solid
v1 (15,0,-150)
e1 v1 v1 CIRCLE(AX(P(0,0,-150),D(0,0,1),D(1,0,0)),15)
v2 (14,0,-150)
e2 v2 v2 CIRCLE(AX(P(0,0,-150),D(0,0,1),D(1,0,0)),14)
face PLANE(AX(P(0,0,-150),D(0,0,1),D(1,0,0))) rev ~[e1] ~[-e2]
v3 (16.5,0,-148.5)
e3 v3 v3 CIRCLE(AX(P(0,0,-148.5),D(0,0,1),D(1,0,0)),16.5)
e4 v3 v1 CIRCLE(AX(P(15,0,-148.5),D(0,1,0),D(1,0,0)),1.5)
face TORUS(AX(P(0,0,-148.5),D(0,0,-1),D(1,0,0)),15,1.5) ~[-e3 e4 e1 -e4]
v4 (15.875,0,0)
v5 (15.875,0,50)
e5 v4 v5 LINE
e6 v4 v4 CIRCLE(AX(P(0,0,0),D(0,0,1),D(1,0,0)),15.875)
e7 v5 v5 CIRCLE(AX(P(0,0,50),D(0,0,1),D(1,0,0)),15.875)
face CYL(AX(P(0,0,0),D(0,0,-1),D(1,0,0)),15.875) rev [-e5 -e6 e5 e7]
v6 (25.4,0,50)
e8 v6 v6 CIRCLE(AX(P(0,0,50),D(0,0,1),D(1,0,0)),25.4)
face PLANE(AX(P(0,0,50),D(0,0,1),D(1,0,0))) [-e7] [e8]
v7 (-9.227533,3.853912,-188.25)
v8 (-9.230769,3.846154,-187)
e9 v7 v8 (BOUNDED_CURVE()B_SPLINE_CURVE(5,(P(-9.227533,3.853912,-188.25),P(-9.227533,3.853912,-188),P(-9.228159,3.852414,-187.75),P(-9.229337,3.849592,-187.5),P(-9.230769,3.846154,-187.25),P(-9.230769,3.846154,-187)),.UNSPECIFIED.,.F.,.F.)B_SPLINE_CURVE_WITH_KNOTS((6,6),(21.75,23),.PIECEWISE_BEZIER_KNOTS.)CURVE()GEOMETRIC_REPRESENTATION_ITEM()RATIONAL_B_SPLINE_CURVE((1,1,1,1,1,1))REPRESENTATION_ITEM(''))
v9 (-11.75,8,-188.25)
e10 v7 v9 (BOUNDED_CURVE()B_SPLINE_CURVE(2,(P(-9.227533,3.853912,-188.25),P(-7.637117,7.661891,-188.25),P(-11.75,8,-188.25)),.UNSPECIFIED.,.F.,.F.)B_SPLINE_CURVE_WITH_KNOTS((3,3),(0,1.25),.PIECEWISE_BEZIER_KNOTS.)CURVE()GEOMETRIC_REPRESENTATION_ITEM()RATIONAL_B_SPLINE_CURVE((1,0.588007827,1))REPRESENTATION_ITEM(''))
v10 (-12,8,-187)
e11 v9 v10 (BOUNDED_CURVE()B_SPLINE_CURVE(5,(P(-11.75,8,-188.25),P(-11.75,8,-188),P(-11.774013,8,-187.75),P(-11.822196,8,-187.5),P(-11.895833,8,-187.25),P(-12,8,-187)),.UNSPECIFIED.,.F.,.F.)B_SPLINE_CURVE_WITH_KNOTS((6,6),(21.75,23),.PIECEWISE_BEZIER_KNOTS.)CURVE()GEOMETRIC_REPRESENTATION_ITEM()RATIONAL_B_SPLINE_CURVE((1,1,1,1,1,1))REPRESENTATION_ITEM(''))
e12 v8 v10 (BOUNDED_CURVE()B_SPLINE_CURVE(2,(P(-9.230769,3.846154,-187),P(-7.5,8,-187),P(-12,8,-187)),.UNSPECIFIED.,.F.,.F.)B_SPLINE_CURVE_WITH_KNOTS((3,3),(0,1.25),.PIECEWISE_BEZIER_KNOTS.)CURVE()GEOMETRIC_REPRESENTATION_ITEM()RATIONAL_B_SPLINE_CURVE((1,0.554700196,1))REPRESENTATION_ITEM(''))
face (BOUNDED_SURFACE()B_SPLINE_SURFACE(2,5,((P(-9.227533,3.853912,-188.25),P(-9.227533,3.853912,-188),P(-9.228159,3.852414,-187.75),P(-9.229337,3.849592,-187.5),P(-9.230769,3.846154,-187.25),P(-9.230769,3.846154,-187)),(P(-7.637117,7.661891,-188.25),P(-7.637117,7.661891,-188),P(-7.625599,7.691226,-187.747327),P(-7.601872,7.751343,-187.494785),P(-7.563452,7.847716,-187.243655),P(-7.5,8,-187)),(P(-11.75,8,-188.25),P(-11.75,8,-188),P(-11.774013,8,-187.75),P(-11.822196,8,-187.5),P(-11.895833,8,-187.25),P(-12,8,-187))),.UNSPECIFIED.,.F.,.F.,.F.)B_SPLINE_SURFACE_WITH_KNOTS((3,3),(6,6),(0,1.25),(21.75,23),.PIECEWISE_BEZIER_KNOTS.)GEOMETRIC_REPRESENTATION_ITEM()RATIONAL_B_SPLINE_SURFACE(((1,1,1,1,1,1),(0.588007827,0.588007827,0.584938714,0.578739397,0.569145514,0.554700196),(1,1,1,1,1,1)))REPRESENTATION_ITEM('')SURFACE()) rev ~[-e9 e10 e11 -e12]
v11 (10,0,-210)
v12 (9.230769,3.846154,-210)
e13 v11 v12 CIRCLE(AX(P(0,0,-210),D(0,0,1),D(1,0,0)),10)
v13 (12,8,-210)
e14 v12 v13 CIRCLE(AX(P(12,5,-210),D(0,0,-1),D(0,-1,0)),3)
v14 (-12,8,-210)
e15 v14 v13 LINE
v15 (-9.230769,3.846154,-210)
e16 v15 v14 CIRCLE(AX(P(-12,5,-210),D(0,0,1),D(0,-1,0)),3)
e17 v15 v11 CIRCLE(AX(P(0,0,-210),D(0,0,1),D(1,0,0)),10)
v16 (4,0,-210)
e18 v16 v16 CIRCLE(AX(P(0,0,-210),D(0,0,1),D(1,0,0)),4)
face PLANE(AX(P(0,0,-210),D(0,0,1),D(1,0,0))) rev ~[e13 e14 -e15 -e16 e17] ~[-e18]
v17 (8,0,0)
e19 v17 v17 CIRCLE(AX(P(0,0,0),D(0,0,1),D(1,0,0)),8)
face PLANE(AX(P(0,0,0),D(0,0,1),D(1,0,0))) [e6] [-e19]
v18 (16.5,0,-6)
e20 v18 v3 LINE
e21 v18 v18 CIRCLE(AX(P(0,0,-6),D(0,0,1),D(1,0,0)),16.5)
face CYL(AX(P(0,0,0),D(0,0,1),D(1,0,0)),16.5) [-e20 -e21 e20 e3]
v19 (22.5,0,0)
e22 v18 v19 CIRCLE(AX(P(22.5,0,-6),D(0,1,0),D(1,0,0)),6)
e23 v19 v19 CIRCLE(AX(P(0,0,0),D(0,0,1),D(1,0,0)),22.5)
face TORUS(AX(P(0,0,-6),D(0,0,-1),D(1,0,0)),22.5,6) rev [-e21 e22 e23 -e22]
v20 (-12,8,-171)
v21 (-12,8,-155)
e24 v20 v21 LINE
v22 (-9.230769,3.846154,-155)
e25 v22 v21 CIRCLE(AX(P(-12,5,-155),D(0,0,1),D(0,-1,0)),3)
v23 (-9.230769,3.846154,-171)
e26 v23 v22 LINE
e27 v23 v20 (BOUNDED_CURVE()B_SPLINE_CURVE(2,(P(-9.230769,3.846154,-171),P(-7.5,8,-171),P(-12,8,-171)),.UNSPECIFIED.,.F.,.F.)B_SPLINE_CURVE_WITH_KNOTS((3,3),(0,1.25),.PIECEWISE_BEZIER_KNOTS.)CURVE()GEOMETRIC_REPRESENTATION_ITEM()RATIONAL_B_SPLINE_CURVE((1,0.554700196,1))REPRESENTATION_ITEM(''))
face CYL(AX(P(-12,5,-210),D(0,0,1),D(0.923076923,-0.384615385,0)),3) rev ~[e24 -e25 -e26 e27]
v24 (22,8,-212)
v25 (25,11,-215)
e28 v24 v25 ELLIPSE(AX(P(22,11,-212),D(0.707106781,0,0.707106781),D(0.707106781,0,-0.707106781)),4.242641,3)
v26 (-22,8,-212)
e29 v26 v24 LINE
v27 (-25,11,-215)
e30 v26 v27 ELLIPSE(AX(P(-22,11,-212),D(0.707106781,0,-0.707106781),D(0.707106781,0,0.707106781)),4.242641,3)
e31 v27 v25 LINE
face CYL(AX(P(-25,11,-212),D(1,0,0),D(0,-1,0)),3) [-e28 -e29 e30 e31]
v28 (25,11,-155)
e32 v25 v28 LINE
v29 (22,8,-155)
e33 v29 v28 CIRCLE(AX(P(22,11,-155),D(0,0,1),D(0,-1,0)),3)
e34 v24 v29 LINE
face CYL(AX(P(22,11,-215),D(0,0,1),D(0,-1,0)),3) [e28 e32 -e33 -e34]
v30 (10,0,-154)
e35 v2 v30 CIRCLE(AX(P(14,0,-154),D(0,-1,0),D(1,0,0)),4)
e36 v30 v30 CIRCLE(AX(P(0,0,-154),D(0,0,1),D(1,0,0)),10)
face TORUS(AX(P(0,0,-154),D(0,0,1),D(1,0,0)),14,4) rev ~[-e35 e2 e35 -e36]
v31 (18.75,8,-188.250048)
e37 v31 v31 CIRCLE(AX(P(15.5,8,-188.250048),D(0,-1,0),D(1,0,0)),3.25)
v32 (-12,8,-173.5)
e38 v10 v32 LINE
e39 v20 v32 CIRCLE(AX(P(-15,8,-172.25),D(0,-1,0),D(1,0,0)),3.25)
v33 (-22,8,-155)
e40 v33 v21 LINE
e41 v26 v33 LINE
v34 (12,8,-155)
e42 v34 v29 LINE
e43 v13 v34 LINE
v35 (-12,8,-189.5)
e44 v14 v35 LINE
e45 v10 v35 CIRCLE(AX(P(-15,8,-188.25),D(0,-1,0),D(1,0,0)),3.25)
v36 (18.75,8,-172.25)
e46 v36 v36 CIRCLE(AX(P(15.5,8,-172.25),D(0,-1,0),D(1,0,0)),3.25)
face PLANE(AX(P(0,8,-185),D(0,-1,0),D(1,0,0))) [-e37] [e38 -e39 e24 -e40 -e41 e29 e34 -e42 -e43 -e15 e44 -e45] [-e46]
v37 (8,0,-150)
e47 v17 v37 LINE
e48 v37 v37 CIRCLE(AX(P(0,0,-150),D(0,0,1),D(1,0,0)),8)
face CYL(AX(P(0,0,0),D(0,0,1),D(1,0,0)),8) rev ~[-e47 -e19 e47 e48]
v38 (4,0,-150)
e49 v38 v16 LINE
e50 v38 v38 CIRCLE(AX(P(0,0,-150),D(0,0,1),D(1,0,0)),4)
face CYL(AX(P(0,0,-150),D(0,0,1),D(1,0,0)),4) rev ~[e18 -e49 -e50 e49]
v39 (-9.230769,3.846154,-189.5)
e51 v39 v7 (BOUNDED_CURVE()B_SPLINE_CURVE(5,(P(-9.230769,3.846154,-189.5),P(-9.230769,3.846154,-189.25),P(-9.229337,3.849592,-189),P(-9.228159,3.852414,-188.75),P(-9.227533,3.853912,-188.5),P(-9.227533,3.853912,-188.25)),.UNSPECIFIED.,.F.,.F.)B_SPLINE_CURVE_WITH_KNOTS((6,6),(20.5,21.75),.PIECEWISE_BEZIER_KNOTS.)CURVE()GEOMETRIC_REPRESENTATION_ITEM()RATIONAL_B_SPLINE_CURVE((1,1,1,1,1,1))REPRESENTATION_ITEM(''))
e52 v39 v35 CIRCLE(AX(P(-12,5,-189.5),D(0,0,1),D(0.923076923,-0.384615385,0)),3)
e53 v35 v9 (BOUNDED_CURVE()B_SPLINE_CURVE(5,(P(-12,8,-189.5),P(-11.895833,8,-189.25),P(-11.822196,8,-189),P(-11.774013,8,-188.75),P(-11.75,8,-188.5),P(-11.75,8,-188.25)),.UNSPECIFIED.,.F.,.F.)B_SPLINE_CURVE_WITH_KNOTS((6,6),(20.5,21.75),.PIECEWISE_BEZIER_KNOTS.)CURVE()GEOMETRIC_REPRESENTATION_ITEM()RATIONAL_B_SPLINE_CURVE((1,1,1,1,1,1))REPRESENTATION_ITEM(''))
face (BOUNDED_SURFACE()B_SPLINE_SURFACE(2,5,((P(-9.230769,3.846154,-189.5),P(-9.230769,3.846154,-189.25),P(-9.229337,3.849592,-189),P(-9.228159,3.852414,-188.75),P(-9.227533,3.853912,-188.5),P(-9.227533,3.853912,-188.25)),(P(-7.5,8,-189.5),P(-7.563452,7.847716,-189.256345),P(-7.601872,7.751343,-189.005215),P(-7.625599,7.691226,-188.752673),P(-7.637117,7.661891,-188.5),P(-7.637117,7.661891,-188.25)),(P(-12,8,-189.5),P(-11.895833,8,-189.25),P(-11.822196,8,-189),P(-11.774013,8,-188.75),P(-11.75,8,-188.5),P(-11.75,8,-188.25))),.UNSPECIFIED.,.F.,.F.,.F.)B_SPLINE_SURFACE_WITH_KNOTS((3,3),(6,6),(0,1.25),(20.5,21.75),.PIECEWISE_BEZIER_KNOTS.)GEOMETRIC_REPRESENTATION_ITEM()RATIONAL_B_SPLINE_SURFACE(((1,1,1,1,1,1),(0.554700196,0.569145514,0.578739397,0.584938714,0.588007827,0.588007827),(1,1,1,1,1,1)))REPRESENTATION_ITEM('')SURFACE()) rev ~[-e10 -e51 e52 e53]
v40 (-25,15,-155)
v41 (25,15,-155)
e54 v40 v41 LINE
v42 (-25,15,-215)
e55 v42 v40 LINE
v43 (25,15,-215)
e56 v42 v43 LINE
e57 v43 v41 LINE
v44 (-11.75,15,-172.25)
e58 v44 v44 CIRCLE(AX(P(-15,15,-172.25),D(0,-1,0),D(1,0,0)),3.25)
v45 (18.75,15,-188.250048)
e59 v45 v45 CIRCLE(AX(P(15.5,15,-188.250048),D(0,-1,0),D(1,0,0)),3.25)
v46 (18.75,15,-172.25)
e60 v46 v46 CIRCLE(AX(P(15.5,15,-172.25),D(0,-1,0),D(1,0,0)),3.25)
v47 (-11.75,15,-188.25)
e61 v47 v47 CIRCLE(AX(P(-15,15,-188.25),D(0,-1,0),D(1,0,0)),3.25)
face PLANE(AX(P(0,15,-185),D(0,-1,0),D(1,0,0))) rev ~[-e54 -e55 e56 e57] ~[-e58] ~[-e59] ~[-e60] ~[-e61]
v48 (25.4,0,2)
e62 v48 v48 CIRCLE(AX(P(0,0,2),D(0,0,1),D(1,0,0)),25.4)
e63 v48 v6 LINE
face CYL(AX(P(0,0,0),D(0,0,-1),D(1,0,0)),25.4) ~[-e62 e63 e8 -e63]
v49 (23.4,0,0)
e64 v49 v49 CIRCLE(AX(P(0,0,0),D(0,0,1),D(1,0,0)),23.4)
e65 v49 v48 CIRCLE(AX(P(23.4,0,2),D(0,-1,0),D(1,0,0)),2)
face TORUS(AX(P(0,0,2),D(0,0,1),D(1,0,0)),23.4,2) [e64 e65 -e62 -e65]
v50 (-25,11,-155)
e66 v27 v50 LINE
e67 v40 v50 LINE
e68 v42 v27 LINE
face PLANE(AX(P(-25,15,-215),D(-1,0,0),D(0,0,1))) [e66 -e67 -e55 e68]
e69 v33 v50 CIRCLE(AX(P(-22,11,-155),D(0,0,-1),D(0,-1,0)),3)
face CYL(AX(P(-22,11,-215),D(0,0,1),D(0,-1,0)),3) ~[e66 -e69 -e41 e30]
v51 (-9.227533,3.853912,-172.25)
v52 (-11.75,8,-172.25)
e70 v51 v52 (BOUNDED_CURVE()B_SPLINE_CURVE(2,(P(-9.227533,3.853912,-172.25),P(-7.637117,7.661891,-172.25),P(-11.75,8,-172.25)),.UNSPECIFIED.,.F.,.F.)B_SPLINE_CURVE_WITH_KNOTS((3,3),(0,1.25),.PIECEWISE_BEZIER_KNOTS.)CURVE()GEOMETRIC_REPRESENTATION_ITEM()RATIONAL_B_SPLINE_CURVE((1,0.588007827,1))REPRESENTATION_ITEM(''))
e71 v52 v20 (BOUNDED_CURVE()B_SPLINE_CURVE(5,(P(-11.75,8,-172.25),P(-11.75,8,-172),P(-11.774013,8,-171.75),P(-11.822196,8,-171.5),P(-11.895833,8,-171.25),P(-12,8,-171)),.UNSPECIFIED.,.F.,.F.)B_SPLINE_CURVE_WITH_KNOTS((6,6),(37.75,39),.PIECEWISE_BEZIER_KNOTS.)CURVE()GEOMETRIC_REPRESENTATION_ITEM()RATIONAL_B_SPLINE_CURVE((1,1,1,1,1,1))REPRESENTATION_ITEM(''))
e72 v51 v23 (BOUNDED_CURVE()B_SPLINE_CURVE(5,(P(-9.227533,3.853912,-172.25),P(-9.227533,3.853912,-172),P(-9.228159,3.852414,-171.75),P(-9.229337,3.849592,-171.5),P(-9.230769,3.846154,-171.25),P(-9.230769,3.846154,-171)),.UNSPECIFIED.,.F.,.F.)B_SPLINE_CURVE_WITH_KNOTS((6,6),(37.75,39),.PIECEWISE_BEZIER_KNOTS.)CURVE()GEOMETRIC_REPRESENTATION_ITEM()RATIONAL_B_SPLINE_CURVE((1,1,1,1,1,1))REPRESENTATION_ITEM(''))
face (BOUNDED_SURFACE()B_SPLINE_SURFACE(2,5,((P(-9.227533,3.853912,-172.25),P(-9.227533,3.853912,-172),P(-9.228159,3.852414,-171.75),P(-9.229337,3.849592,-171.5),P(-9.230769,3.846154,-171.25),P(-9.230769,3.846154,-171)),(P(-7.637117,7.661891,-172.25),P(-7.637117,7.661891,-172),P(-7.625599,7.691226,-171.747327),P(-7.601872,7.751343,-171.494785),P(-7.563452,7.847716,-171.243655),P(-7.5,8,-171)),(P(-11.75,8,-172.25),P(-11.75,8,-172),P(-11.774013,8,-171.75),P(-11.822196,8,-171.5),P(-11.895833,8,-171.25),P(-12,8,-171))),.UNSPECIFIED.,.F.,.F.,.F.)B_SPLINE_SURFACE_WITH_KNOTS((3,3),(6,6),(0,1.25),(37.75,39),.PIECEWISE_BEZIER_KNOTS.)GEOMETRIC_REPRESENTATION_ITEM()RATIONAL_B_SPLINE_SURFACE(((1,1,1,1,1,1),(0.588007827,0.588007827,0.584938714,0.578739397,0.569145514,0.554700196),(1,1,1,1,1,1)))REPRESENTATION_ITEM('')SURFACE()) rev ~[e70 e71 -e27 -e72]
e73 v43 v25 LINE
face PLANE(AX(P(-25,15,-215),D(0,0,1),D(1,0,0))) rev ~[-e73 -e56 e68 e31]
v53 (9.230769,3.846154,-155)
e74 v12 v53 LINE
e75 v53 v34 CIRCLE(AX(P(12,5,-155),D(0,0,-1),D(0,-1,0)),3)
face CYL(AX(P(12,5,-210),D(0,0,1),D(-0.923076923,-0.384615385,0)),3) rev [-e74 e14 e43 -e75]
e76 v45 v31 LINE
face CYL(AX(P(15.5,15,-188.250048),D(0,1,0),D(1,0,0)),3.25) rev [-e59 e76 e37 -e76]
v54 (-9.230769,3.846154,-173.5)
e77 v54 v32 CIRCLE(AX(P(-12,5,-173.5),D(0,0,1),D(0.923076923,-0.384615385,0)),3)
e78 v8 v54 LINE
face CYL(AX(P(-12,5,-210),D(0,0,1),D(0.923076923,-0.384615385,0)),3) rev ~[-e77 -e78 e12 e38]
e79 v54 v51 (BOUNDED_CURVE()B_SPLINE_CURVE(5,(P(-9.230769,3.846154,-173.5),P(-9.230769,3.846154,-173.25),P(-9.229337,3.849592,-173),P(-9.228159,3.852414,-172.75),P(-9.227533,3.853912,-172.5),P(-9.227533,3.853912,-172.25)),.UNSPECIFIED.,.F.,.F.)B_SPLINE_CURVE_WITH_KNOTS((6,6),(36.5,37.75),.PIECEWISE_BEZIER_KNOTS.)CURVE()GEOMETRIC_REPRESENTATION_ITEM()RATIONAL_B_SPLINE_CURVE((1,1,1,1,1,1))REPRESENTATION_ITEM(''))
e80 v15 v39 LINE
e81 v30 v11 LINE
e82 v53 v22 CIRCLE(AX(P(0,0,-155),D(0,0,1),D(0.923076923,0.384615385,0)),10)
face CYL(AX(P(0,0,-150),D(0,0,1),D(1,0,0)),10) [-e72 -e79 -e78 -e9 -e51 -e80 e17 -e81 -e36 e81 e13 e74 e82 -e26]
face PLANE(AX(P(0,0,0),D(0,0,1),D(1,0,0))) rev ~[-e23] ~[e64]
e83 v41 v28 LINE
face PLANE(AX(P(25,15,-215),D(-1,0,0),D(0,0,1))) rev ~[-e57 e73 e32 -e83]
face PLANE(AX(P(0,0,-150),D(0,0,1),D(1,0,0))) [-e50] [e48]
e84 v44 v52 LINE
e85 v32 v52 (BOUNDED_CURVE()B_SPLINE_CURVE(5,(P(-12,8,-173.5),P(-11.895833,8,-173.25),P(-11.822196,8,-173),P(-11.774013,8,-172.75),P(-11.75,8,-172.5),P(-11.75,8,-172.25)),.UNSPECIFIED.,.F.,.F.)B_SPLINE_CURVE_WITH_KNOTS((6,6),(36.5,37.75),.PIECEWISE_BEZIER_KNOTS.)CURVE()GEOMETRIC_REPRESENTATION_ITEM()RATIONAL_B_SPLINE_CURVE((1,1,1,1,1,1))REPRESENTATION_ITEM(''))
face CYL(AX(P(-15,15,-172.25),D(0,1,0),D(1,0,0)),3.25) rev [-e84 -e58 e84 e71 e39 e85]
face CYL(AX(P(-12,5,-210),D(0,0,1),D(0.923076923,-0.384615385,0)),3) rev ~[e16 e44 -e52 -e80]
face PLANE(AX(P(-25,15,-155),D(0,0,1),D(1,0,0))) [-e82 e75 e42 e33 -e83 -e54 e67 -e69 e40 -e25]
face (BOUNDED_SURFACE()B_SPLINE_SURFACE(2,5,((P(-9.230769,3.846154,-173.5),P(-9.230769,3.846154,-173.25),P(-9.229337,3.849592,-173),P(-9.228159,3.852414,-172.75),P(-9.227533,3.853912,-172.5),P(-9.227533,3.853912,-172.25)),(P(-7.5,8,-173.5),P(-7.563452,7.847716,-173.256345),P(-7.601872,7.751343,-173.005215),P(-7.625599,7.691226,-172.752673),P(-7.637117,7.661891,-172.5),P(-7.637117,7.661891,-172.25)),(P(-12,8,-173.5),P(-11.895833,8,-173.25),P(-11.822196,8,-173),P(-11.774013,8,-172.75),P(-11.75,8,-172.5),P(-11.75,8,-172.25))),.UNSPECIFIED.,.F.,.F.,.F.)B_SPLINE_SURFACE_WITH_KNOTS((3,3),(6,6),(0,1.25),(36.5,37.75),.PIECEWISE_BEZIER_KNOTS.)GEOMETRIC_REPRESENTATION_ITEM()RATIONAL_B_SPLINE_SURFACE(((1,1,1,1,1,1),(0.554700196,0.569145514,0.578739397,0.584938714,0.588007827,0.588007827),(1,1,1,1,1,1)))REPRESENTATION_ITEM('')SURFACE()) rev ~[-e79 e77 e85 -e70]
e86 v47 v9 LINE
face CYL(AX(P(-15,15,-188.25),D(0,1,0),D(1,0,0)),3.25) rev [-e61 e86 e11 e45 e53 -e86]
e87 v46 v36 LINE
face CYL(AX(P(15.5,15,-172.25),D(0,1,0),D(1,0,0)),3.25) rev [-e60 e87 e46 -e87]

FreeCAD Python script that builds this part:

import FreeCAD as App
import Part
import Sketcher
from FreeCAD import Vector
Q = App.Units.Quantity


def edges_at(feature, points):
    """Names of the edges that pass closest to the given points."""
    edges = feature.Shape.Edges
    near = lambda p: min(range(len(edges)), key=lambda i: edges[i].distToShape(Part.Vertex(*p))[0])
    return sorted({f"Edge{near(p) + 1}" for p in points})

doc = App.newDocument("Part")
body = doc.addObject("PartDesign::Body", "Body")

# Sketch on XY plane
sketch1 = body.newObject("Sketcher::SketchObject", "Sketch")
sketch1.AttachmentSupport = (doc.getObject("XY_Plane"), [""])
sketch1.MapMode = "FlatFace"
sketch1.addGeometry(Part.Circle(Vector(0, 0, 0), Vector(0, 0, 1), 16), False)
sketch1.addGeometry(Part.Circle(Vector(0, 0, 0), Vector(0, 0, 1), 8), False)
sketch1.addConstraint(Sketcher.Constraint("Coincident", 0, 3, -1, 1))
sketch1.addConstraint(Sketcher.Constraint("Coincident", 1, 3, -1, 1))
sketch1.addConstraint(Sketcher.Constraint("Diameter", 0, Q("33 mm")))
sketch1.addConstraint(Sketcher.Constraint("Diameter", 1, Q("16 mm")))
pad1 = body.newObject("PartDesign::Pad", "Pad")
pad1.Profile = sketch1
pad1.Length = 150
pad1.Reversed = True
body2 = doc.addObject("PartDesign::Body", "Body001")

# Sketch on XY plane
sketch2 = body2.newObject("Sketcher::SketchObject", "Sketch001")
sketch2.AttachmentSupport = (doc.getObject("XY_Plane001"), [""])
sketch2.MapMode = "FlatFace"
sketch2.AttachmentOffset = App.Placement(Vector(0, 0, -150), App.Rotation())
sketch2.addGeometry(Part.Circle(Vector(0, 0, 0), Vector(0, 0, 1), 10), False)
sketch2.addGeometry(Part.Circle(Vector(0, 0, 0), Vector(0, 0, 1), 4), False)
sketch2.addConstraint(Sketcher.Constraint("Coincident", 0, 3, -1, 1))
sketch2.addConstraint(Sketcher.Constraint("Coincident", 1, 3, -1, 1))
sketch2.addConstraint(Sketcher.Constraint("Diameter", 0, Q("20 mm")))
sketch2.addConstraint(Sketcher.Constraint("Diameter", 1, Q("8 mm")))
pad2 = body2.newObject("PartDesign::Pad", "Pad001")
pad2.Profile = sketch2
pad2.Length = 60
pad2.Reversed = True
body3 = doc.addObject("PartDesign::Body", "Body002")

# Sketch on XZ plane
sketch3 = body3.newObject("Sketcher::SketchObject", "Sketch002")
sketch3.AttachmentSupport = (doc.getObject("XZ_Plane002"), [""])
sketch3.MapMode = "FlatFace"
sketch3.AttachmentOffset = App.Placement(Vector(0, 0, -15), App.Rotation())
sketch3.addGeometry(Part.LineSegment(Vector(-25, -155, 0), Vector(-25, -215, 0)), False)
sketch3.addGeometry(Part.LineSegment(Vector(-25, -215, 0), Vector(25, -215, 0)), False)
sketch3.addGeometry(Part.LineSegment(Vector(25, -215, 0), Vector(25, -155, 0)), False)
sketch3.addGeometry(Part.LineSegment(Vector(25, -155, 0), Vector(-25, -155, 0)), False)
sketch3.addGeometry(Part.Circle(Vector(-15, -188.2, 0), Vector(0, 0, 1), 3.2), False)
sketch3.addGeometry(Part.Circle(Vector(15.5, -188.3, 0), Vector(0, 0, 1), 3.2), False)
sketch3.addGeometry(Part.Circle(Vector(-15, -172.2, 0), Vector(0, 0, 1), 3.2), False)
sketch3.addGeometry(Part.Circle(Vector(15.5, -172.2, 0), Vector(0, 0, 1), 3.2), False)
sketch3.addConstraint(Sketcher.Constraint("Coincident", 0, 2, 1, 1))
sketch3.addConstraint(Sketcher.Constraint("Coincident", 1, 2, 2, 1))
sketch3.addConstraint(Sketcher.Constraint("Coincident", 2, 2, 3, 1))
sketch3.addConstraint(Sketcher.Constraint("Coincident", 3, 2, 0, 1))
sketch3.addConstraint(Sketcher.Constraint("Vertical", 0))
sketch3.addConstraint(Sketcher.Constraint("Horizontal", 1))
sketch3.addConstraint(Sketcher.Constraint("Vertical", 2))
sketch3.addConstraint(Sketcher.Constraint("Horizontal", 3))
sketch3.addConstraint(Sketcher.Constraint("Equal", 4, 5))
sketch3.addConstraint(Sketcher.Constraint("Equal", 5, 6))
sketch3.addConstraint(Sketcher.Constraint("Equal", 6, 7))
sketch3.addConstraint(Sketcher.Constraint("Horizontal", 6, 3, 7, 3))
sketch3.addConstraint(Sketcher.Constraint("Vertical", 4, 3, 6, 3))
sketch3.addConstraint(Sketcher.Constraint("Vertical", 5, 3, 7, 3))
sketch3.addConstraint(Sketcher.Constraint("Diameter", 4, Q("6.5 mm")))
sketch3.addConstraint(Sketcher.Constraint("DistanceX", 1, 1, 1, 2, Q("50 mm")))
sketch3.addConstraint(Sketcher.Constraint("DistanceY", 0, 2, 0, 1, Q("60 mm")))
sketch3.addConstraint(Sketcher.Constraint("DistanceX", 4, 3, -1, 1, Q("15 mm")))
sketch3.addConstraint(Sketcher.Constraint("DistanceX", 0, 2, -1, 1, Q("25 mm")))
sketch3.addConstraint(Sketcher.Constraint("DistanceY", 0, 2, -1, 1, Q("215 mm")))
sketch3.addConstraint(Sketcher.Constraint("DistanceY", 4, 3, 6, 3, Q("16 mm")))
sketch3.addConstraint(Sketcher.Constraint("DistanceX", -1, 1, 5, 3, Q("15.5 mm")))
sketch3.addConstraint(Sketcher.Constraint("DistanceY", 4, 3, -1, 1, Q("188.25 mm")))
sketch3.addConstraint(Sketcher.Constraint("DistanceY", 5, 3, -1, 1, Q("188.250048 mm")))
pad3 = body3.newObject("PartDesign::Pad", "Pad002")
pad3.Profile = sketch3
pad3.Length = 7
body4 = doc.addObject("PartDesign::Body", "Body003")

# Sketch on XY plane
sketch4 = body4.newObject("Sketcher::SketchObject", "Sketch003")
sketch4.AttachmentSupport = (doc.getObject("XY_Plane003"), [""])
sketch4.MapMode = "FlatFace"
sketch4.addGeometry(Part.Circle(Vector(0, 0, 0), Vector(0, 0, 1), 25), False)
sketch4.addGeometry(Part.Circle(Vector(0, 0, 0), Vector(0, 0, 1), 16), False)
sketch4.addConstraint(Sketcher.Constraint("Coincident", 0, 3, -1, 1))
sketch4.addConstraint(Sketcher.Constraint("Coincident", 1, 3, -1, 1))
sketch4.addConstraint(Sketcher.Constraint("Diameter", 0, Q("50.8 mm")))
sketch4.addConstraint(Sketcher.Constraint("Diameter", 1, Q("31.75 mm")))
pad4 = body4.newObject("PartDesign::Pad", "Pad003")
pad4.Profile = sketch4
pad4.Length = 50
doc.recompute()

boolean = body4.newObject("PartDesign::Boolean", "Boolean")
boolean.Type = "Fuse"
boolean.addObjects([body])
doc.recompute()

boolean2 = body4.newObject("PartDesign::Boolean", "Boolean001")
boolean2.Type = "Fuse"
boolean2.addObjects([body2])
doc.recompute()

boolean3 = body4.newObject("PartDesign::Boolean", "Boolean002")
boolean3.Type = "Fuse"
boolean3.addObjects([body3])
doc.recompute()

fillet = body4.newObject("PartDesign::Fillet", "Fillet")
fillet.Base = (boolean3, edges_at(boolean3, [(-16.5, 0, 0)]))
fillet.Radius = 6
doc.recompute()

fillet2 = body4.newObject("PartDesign::Fillet", "Fillet001")
fillet2.Base = (fillet, edges_at(fillet, [(-10, 0, -150)]))
fillet2.Radius = 4
doc.recompute()

fillet3 = body4.newObject("PartDesign::Fillet", "Fillet002")
fillet3.Base = (fillet2, edges_at(fillet2, [
    (6, 8, -182.5),
    (-6, 8, -182.5),
    (-25, 8, -185),
    (0, 8, -215),
    (25, 8, -185),
]))
fillet3.Radius = 3
doc.recompute()

fillet4 = body4.newObject("PartDesign::Fillet", "Fillet003")
fillet4.Base = (fillet3, edges_at(fillet3, [(-25.4, 0, 0)]))
fillet4.Radius = 2
doc.recompute()

fillet5 = body4.newObject("PartDesign::Fillet", "Fillet004")
fillet5.Base = (fillet4, edges_at(fillet4, [(-16.5, 0, -150)]))
fillet5.Radius = 1.5

doc.recompute()
